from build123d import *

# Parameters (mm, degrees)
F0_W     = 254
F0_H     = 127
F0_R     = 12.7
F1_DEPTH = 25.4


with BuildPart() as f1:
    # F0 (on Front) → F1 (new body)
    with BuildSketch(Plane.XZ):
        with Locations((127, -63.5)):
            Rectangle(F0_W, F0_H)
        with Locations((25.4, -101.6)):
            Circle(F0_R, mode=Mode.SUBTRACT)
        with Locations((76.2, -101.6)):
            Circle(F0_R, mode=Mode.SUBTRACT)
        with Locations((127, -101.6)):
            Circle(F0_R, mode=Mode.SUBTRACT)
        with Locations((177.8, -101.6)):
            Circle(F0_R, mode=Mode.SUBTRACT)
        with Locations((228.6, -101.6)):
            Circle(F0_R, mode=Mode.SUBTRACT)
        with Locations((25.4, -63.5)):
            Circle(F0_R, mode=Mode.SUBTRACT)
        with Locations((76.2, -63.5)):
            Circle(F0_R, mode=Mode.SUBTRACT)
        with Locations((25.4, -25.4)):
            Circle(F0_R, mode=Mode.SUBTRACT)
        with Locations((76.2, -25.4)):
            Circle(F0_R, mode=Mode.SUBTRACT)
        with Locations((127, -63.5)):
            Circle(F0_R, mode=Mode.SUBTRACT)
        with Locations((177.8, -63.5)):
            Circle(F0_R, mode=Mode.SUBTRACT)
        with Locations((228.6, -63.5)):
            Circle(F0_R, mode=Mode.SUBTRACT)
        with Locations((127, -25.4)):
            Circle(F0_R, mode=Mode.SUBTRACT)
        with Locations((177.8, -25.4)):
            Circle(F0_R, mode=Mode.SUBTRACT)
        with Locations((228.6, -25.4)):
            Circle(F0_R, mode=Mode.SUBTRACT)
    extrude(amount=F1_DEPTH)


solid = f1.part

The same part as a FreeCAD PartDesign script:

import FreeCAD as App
import Part
import Sketcher

V = App.Vector
Q = App.Units.Quantity


def add_polygon(sketch, points):
    """Adds a closed chain of lines whose ends are joined by coincident constraints."""
    first, n = sketch.GeometryCount, len(points)
    for a, b in zip(points, points[1:] + points[:1]):
        sketch.addGeometry(Part.LineSegment(App.Vector(*a, 0), App.Vector(*b, 0)), False)
    for i in range(n):
        sketch.addConstraint(Sketcher.Constraint("Coincident", first + i, 2, first + (i + 1) % n, 1))

doc = App.newDocument("Part")
body = doc.addObject("PartDesign::Body", "Body")

sketch1 = doc.addObject("Sketcher::SketchObject", "Sketch")
body.addObject(sketch1)
sketch1.AttachmentSupport = (doc.XZ_Plane, [""])
sketch1.MapMode = "FlatFace"
add_polygon(sketch1, [(0, 0), (0, -127), (254, -127), (254, 0)])
sketch1.addGeometry(Part.Circle(V(25, -102, 0), V(0, 0, 1), 13), False)
sketch1.addGeometry(Part.Circle(V(76, -102, 0), V(0, 0, 1), 13), False)
sketch1.addGeometry(Part.Circle(V(25, -64, 0), V(0, 0, 1), 13), False)
sketch1.addGeometry(Part.Circle(V(76, -64, 0), V(0, 0, 1), 13), False)
sketch1.addGeometry(Part.Circle(V(127, -102, 0), V(0, 0, 1), 13), False)
sketch1.addGeometry(Part.Circle(V(178, -102, 0), V(0, 0, 1), 13), False)
sketch1.addGeometry(Part.Circle(V(229, -102, 0), V(0, 0, 1), 13), False)
sketch1.addGeometry(Part.Circle(V(127, -64, 0), V(0, 0, 1), 13), False)
sketch1.addGeometry(Part.Circle(V(178, -64, 0), V(0, 0, 1), 13), False)
sketch1.addGeometry(Part.Circle(V(229, -64, 0), V(0, 0, 1), 13), False)
sketch1.addGeometry(Part.Circle(V(25, -25, 0), V(0, 0, 1), 13), False)
sketch1.addGeometry(Part.Circle(V(76, -25, 0), V(0, 0, 1), 13), False)
sketch1.addGeometry(Part.Circle(V(127, -25, 0), V(0, 0, 1), 13), False)
sketch1.addGeometry(Part.Circle(V(178, -25, 0), V(0, 0, 1), 13), False)
sketch1.addGeometry(Part.Circle(V(229, -25, 0), V(0, 0, 1), 13), False)
sketch1.addConstraint([
    Sketcher.Constraint("Vertical", 0),
    Sketcher.Constraint("Horizontal", 1),
    Sketcher.Constraint("Vertical", 2),
    Sketcher.Constraint("Horizontal", 3),
    Sketcher.Constraint("Coincident", 3, 2, -1, 1),
    Sketcher.Constraint("Equal", 4, 5),
    Sketcher.Constraint("Equal", 5, 6),
    Sketcher.Constraint("Equal", 6, 7),
    Sketcher.Constraint("Equal", 7, 8),
    Sketcher.Constraint("Equal", 8, 9),
    Sketcher.Constraint("Equal", 9, 10),
    Sketcher.Constraint("Equal", 10, 11),
    Sketcher.Constraint("Equal", 11, 12),
    Sketcher.Constraint("Equal", 12, 13),
    Sketcher.Constraint("Equal", 13, 14),
    Sketcher.Constraint("Equal", 14, 15),
    Sketcher.Constraint("Equal", 15, 16),
    Sketcher.Constraint("Equal", 16, 17),
    Sketcher.Constraint("Equal", 17, 18),
    Sketcher.Constraint("Horizontal", 4, 3, 5, 3),
    Sketcher.Constraint("Horizontal", 6, 3, 7, 3),
    Sketcher.Constraint("Horizontal", 5, 3, 8, 3),
    Sketcher.Constraint("Horizontal", 8, 3, 9, 3),
    Sketcher.Constraint("Horizontal", 9, 3, 10, 3),
    Sketcher.Constraint("Horizontal", 7, 3, 11, 3),
    Sketcher.Constraint("Horizontal", 11, 3, 12, 3),
    Sketcher.Constraint("Horizontal", 12, 3, 13, 3),
    Sketcher.Constraint("Horizontal", 14, 3, 15, 3),
    Sketcher.Constraint("Horizontal", 15, 3, 16, 3),
    Sketcher.Constraint("Horizontal", 16, 3, 17, 3),
    Sketcher.Constraint("Horizontal", 17, 3, 18, 3),
    Sketcher.Constraint("Vertical", 4, 3, 6, 3),
    Sketcher.Constraint("Vertical", 5, 3, 7, 3),
    Sketcher.Constraint("Vertical", 8, 3, 11, 3),
    Sketcher.Constraint("Vertical", 9, 3, 12, 3),
    Sketcher.Constraint("Vertical", 10, 3, 13, 3),
    Sketcher.Constraint("Vertical", 6, 3, 14, 3),
    Sketcher.Constraint("Vertical", 7, 3, 15, 3),
    Sketcher.Constraint("Vertical", 11, 3, 16, 3),
    Sketcher.Constraint("Vertical", 12, 3, 17, 3),
    Sketcher.Constraint("Vertical", 13, 3, 18, 3),
    Sketcher.Constraint("Diameter", 4, Q("1 in")),
    Sketcher.Constraint("DistanceX", 1, 1, 1, 2, Q("10 in")),
    Sketcher.Constraint("DistanceY", 0, 2, 0, 1, Q("5 in")),
    Sketcher.Constraint("DistanceX", -1, 1, 4, 3, Q("1 in")),
    Sketcher.Constraint("DistanceY", 4, 3, -1, 1, Q("4 in")),
    Sketcher.Constraint("DistanceX", -1, 1, 5, 3, Q("3 in")),
    Sketcher.Constraint("DistanceX", -1, 1, 8, 3, Q("5 in")),
    Sketcher.Constraint("DistanceX", -1, 1, 9, 3, Q("7 in")),
    Sketcher.Constraint("DistanceX", -1, 1, 10, 3, Q("9 in")),
    Sketcher.Constraint("DistanceY", 14, 3, -1, 1, Q("1 in")),
    Sketcher.Constraint("DistanceY", 6, 3, -1, 1, Q("2.5 in")),
])
pad1 = doc.addObject("PartDesign::Pad", "Pad")
body.addObject(pad1)
pad1.Profile = sketch1
pad1.Length = Q("1 in")

doc.recompute()
